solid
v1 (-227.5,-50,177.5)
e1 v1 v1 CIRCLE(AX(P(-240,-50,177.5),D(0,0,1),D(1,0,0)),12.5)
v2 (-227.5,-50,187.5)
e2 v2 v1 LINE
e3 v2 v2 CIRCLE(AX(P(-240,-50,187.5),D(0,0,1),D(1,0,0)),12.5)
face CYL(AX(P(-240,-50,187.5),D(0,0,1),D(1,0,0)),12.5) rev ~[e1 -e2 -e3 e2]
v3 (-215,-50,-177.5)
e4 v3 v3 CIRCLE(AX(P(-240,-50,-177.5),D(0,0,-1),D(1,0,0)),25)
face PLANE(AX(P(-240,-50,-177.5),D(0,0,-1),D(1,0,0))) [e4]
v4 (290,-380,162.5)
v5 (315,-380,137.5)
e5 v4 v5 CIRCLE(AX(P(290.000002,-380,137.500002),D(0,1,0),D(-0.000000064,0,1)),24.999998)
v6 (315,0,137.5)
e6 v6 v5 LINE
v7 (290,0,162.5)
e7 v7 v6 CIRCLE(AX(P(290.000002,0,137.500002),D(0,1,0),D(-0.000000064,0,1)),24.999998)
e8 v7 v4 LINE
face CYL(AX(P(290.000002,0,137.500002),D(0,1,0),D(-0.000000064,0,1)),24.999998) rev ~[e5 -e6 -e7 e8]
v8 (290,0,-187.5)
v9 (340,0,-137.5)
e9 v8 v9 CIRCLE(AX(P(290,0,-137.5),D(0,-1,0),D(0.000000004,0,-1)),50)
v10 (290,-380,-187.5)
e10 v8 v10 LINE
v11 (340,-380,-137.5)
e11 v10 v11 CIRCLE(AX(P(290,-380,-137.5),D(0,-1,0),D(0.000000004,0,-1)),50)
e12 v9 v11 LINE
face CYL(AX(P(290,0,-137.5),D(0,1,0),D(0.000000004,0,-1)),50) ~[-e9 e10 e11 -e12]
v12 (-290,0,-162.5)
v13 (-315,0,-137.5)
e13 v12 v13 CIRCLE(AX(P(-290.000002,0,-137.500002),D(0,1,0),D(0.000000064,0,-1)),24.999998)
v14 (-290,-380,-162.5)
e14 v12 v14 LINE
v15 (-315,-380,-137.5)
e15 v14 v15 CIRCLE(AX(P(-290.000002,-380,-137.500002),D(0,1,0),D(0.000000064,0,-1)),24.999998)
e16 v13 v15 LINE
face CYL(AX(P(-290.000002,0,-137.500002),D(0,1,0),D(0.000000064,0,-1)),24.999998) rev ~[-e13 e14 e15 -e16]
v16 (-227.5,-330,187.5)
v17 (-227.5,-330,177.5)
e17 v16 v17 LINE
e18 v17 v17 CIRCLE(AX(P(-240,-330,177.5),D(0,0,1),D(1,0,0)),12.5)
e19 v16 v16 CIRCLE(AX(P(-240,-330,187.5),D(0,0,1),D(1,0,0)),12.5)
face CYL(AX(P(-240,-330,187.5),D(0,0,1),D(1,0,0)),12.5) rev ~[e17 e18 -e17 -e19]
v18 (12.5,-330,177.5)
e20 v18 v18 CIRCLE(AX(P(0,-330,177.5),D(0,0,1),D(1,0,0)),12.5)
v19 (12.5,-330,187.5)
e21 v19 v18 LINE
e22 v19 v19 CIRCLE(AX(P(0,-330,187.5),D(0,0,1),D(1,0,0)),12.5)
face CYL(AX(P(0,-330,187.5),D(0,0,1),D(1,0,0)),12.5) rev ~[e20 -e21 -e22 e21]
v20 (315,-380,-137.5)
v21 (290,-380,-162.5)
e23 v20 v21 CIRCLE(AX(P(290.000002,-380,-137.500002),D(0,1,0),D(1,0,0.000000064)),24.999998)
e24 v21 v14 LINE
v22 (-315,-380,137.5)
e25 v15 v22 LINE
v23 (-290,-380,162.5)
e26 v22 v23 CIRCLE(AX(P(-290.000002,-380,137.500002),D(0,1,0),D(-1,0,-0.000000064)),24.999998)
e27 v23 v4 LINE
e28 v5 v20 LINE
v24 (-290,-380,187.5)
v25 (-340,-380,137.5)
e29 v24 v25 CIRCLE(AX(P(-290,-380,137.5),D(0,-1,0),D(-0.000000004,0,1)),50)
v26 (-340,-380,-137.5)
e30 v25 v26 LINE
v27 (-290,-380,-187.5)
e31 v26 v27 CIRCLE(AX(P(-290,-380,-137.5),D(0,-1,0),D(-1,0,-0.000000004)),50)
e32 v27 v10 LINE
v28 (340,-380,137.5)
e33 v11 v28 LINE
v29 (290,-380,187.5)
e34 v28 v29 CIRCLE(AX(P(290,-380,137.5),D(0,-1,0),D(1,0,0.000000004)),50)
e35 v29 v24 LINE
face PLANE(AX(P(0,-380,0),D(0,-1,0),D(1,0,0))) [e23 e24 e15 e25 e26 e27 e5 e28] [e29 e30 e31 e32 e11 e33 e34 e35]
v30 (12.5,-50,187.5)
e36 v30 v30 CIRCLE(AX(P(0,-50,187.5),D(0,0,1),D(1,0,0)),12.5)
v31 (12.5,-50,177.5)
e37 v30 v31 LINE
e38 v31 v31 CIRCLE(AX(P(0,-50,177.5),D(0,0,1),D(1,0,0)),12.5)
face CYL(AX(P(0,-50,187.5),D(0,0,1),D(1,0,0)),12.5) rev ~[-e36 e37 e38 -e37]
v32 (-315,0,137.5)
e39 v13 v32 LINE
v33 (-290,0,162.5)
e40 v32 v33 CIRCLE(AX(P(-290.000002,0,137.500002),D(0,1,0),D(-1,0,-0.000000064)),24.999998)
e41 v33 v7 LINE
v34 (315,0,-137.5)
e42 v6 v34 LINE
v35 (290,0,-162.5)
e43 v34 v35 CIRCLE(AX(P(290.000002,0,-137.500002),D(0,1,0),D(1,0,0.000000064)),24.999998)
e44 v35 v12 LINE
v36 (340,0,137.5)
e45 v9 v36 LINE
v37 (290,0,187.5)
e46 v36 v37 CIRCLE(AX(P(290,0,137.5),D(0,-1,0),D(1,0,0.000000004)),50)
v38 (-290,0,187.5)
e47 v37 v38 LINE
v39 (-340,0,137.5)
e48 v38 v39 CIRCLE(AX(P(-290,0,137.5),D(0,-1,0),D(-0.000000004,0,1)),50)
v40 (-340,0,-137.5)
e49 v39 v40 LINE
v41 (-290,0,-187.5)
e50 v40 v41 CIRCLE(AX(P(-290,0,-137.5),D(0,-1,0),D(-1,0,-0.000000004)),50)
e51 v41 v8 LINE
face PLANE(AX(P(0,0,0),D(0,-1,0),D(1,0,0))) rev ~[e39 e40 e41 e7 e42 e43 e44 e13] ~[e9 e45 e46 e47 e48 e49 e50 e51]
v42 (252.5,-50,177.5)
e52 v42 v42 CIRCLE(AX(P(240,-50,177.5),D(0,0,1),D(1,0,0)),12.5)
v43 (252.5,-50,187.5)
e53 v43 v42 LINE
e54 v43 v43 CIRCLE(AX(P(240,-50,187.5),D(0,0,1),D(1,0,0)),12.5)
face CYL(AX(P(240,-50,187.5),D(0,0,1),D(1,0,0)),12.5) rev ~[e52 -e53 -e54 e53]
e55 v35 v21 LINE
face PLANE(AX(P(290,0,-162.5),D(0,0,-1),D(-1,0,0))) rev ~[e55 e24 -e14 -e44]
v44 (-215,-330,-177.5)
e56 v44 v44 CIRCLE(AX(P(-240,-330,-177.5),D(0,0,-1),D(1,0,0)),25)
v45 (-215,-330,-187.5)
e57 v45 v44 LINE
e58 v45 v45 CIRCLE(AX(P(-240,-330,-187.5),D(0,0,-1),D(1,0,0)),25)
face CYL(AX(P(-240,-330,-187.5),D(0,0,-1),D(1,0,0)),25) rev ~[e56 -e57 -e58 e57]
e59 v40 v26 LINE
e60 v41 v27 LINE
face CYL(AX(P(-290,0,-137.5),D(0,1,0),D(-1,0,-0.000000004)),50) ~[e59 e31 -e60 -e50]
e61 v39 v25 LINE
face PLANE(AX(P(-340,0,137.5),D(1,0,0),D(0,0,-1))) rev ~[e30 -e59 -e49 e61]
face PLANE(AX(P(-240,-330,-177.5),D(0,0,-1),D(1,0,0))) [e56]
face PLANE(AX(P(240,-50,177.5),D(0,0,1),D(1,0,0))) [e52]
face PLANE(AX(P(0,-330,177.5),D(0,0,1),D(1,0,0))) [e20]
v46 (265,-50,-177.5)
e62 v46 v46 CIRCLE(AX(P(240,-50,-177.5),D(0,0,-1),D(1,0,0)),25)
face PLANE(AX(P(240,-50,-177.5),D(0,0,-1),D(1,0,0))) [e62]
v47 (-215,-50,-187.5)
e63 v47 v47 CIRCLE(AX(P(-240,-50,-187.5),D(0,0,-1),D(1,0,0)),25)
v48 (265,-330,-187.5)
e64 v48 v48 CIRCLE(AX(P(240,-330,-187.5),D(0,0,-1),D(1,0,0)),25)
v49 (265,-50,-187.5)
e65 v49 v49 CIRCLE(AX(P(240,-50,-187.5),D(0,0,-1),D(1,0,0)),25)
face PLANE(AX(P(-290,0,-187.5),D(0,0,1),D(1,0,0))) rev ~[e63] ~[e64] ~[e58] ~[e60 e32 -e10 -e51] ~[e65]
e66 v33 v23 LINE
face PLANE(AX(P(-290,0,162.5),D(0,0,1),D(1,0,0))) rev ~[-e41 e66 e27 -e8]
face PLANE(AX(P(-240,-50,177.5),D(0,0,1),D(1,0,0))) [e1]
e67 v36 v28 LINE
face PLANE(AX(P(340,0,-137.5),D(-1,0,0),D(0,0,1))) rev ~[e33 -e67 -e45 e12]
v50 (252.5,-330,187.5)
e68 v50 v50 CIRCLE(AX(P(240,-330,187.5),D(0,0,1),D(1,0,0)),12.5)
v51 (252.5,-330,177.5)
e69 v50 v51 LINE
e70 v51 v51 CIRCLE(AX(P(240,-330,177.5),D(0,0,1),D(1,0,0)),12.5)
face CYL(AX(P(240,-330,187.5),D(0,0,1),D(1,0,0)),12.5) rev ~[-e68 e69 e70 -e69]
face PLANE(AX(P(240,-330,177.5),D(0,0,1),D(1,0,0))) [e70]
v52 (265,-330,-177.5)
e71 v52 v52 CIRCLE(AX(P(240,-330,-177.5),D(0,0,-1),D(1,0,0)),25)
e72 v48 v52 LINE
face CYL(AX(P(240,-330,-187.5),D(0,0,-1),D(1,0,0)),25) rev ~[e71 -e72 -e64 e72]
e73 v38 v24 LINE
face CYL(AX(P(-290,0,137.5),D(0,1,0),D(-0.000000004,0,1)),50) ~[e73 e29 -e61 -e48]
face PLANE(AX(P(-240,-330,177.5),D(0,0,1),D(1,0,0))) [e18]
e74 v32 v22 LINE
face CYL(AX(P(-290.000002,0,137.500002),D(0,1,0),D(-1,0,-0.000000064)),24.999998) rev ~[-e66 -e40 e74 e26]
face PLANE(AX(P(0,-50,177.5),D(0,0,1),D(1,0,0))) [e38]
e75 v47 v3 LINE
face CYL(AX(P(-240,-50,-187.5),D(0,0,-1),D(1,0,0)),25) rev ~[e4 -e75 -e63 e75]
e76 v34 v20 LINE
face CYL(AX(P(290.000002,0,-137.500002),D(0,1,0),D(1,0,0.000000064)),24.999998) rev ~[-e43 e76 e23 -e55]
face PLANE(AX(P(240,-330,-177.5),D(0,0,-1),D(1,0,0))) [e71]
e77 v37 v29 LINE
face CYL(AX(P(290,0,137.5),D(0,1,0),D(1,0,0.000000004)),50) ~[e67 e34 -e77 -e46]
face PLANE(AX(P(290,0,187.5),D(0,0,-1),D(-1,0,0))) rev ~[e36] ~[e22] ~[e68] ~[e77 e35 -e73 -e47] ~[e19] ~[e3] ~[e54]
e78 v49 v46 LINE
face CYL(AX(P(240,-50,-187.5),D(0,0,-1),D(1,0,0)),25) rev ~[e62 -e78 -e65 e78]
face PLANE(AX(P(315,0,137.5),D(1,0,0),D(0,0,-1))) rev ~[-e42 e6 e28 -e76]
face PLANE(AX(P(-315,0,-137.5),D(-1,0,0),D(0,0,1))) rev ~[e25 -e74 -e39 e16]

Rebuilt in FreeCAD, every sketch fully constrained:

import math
import FreeCAD as App
import Part
import Sketcher
from FreeCAD import Vector
Q = App.Units.Quantity

doc = App.newDocument("Part")
body = doc.addObject("PartDesign::Body", "Body")

# Sketch on XZ plane
sketch1 = doc.addObject("Sketcher::SketchObject", "Sketch")
body.addObject(sketch1)
sketch1.AttachmentSupport = (doc.XZ_Plane, [""])
sketch1.MapMode = "FlatFace"
sketch1.addGeometry([
    Part.LineSegment(Vector(-290, -188, 0), Vector(290, -188, 0)),  # 0
    Part.ArcOfCircle(Part.Circle(Vector(290, -137, 0), Vector(0, 0, 1), 50), math.radians(-90), math.radians(0)),  # 1
    Part.LineSegment(Vector(340, -138, 0), Vector(340, 138, 0)),  # 2
    Part.ArcOfCircle(Part.Circle(Vector(290, 137, 0), Vector(0, 0, 1), 50), math.radians(0), math.radians(90)),  # 3
    Part.LineSegment(Vector(290, 188, 0), Vector(-290, 188, 0)),  # 4
    Part.ArcOfCircle(Part.Circle(Vector(-290, 137, 0), Vector(0, 0, 1), 50), math.radians(90), math.radians(180)),  # 5
    Part.LineSegment(Vector(-340, 138, 0), Vector(-340, -138, 0)),  # 6
    Part.ArcOfCircle(Part.Circle(Vector(-290, -137, 0), Vector(0, 0, 1), 50), math.radians(-180), math.radians(-90)),  # 7
    Part.LineSegment(Vector(315, 138, 0), Vector(315, -138, 0)),  # 8
    Part.ArcOfCircle(Part.Circle(Vector(290, -138, 0), Vector(0, 0, 1), 25), math.radians(-90), math.radians(0)),  # 9
    Part.LineSegment(Vector(290, -162, 0), Vector(-290, -162, 0)),  # 10
    Part.ArcOfCircle(Part.Circle(Vector(-290, -138, 0), Vector(0, 0, 1), 25), math.radians(180), math.radians(270)),  # 11
    Part.LineSegment(Vector(-315, -138, 0), Vector(-315, 138, 0)),  # 12
    Part.ArcOfCircle(Part.Circle(Vector(-290, 138, 0), Vector(0, 0, 1), 25), math.radians(90), math.radians(180)),  # 13
    Part.LineSegment(Vector(-290, 162, 0), Vector(290, 162, 0)),  # 14
    Part.ArcOfCircle(Part.Circle(Vector(290, 138, 0), Vector(0, 0, 1), 25), math.radians(0), math.radians(90)),  # 15
], False)
sketch1.addConstraint([
    Sketcher.Constraint("Tangent", 0, 2, 1, 1),
    Sketcher.Constraint("Tangent", 1, 2, 2, 1),
    Sketcher.Constraint("Tangent", 2, 2, 3, 1),
    Sketcher.Constraint("Tangent", 3, 2, 4, 1),
    Sketcher.Constraint("Tangent", 4, 2, 5, 1),
    Sketcher.Constraint("Tangent", 5, 2, 6, 1),
    Sketcher.Constraint("Tangent", 6, 2, 7, 1),
    Sketcher.Constraint("Tangent", 7, 2, 0, 1),
    Sketcher.Constraint("Tangent", 8, 2, 9, 2),
    Sketcher.Constraint("Tangent", 9, 1, 10, 1),
    Sketcher.Constraint("Tangent", 10, 2, 11, 2),
    Sketcher.Constraint("Tangent", 11, 1, 12, 1),
    Sketcher.Constraint("Tangent", 12, 2, 13, 2),
    Sketcher.Constraint("Tangent", 13, 1, 14, 1),
    Sketcher.Constraint("Tangent", 14, 2, 15, 2),
    Sketcher.Constraint("Tangent", 15, 1, 8, 1),
    Sketcher.Constraint("Horizontal", 0),
    Sketcher.Constraint("Vertical", 2),
    Sketcher.Constraint("Horizontal", 4),
    Sketcher.Constraint("Vertical", 6),
    Sketcher.Constraint("Vertical", 8),
    Sketcher.Constraint("Horizontal", 10),
    Sketcher.Constraint("Vertical", 12),
    Sketcher.Constraint("Horizontal", 14),
    Sketcher.Constraint("Coincident", 9, 3, 1, 3),
    Sketcher.Constraint("Coincident", 11, 3, 7, 3),
    Sketcher.Constraint("Coincident", 13, 3, 5, 3),
    Sketcher.Constraint("Equal", 1, 3),
    Sketcher.Constraint("Equal", 3, 5),
    Sketcher.Constraint("Equal", 5, 7),
    Sketcher.Constraint("Equal", 13, 15),
    Sketcher.Constraint("Symmetric", 1, 3, 5, 3, -1, 1),
    Sketcher.Constraint("Radius", 1, Q("50 mm")),
    Sketcher.Constraint("Radius", 9, Q("24.999998 mm")),
    Sketcher.Constraint("DistanceX", 0, 1, 0, 2, Q("580 mm")),
    Sketcher.Constraint("DistanceY", 2, 1, 2, 2, Q("275 mm")),
])
pad1 = doc.addObject("PartDesign::Pad", "Pad")
body.addObject(pad1)
pad1.Profile = sketch1
pad1.Length = 380

# Sketch on XY plane
sketch2 = doc.addObject("Sketcher::SketchObject", "Sketch001")
body.addObject(sketch2)
sketch2.AttachmentSupport = (doc.XY_Plane, [""])
sketch2.MapMode = "FlatFace"
sketch2.AttachmentOffset = App.Placement(Vector(0, 0, -187.5), App.Rotation())
sketch2.addGeometry([
    Part.Circle(Vector(-240, -330, 0), Vector(0, 0, 1), 25),
    Part.Circle(Vector(-240, -50, 0), Vector(0, 0, 1), 25),
    Part.Circle(Vector(240, -50, 0), Vector(0, 0, 1), 25),
    Part.Circle(Vector(240, -330, 0), Vector(0, 0, 1), 25),
], False)
sketch2.addConstraint([
    Sketcher.Constraint("Equal", 0, 1),
    Sketcher.Constraint("Equal", 1, 2),
    Sketcher.Constraint("Equal", 2, 3),
    Sketcher.Constraint("Symmetric", 1, 3, 2, 3, -2),
    Sketcher.Constraint("Symmetric", 0, 3, 3, 3, -2),
    Sketcher.Constraint("Vertical", 0, 3, 1, 3),
    Sketcher.Constraint("Diameter", 0, Q("50 mm")),
    Sketcher.Constraint("DistanceX", 0, 3, -1, 1, Q("240 mm")),
    Sketcher.Constraint("DistanceY", 0, 3, -1, 1, Q("330 mm")),
    Sketcher.Constraint("DistanceY", 1, 3, -1, 1, Q("50 mm")),
])
pocket1 = doc.addObject("PartDesign::Pocket", "Pocket")
body.addObject(pocket1)
pocket1.Profile = sketch2
pocket1.Length = 10
pocket1.Reversed = True

# Sketch on XY plane
sketch3 = doc.addObject("Sketcher::SketchObject", "Sketch002")
body.addObject(sketch3)
sketch3.AttachmentSupport = (doc.XY_Plane, [""])
sketch3.MapMode = "FlatFace"
sketch3.AttachmentOffset = App.Placement(Vector(0, 0, 187.5), App.Rotation())
sketch3.addGeometry([
    Part.Circle(Vector(-240, -330, 0), Vector(0, 0, 1), 12),  # 0
    Part.Circle(Vector(-240, -50, 0), Vector(0, 0, 1), 12),  # 1
    Part.Circle(Vector(0, -330, 0), Vector(0, 0, 1), 12),  # 2
    Part.Circle(Vector(0, -50, 0), Vector(0, 0, 1), 12),  # 3
    Part.Circle(Vector(240, -330, 0), Vector(0, 0, 1), 12),  # 4
    Part.Circle(Vector(240, -50, 0), Vector(0, 0, 1), 12),  # 5
], False)
sketch3.addConstraint([
    Sketcher.Constraint("Equal", 0, 1),
    Sketcher.Constraint("Equal", 1, 2),
    Sketcher.Constraint("Equal", 2, 3),
    Sketcher.Constraint("Equal", 3, 4),
    Sketcher.Constraint("Equal", 4, 5),
    Sketcher.Constraint("Symmetric", 0, 3, 4, 3, -2),
    Sketcher.Constraint("Symmetric", 1, 3, 5, 3, -2),
    Sketcher.Constraint("PointOnObject", 2, 3, -2),
    Sketcher.Constraint("PointOnObject", 3, 3, -2),
    Sketcher.Constraint("Horizontal", 0, 3, 2, 3),
    Sketcher.Constraint("Horizontal", 1, 3, 3, 3),
    Sketcher.Constraint("Vertical", 0, 3, 1, 3),
    Sketcher.Constraint("Diameter", 0, Q("25 mm")),
    Sketcher.Constraint("DistanceX", 0, 3, -1, 1, Q("240 mm")),
    Sketcher.Constraint("DistanceY", 0, 3, -1, 1, Q("330 mm")),
    Sketcher.Constraint("DistanceY", 1, 3, -1, 1, Q("50 mm")),
])
pocket2 = doc.addObject("PartDesign::Pocket", "Pocket001")
body.addObject(pocket2)
pocket2.Profile = sketch3
pocket2.Length = 10

doc.recompute()
